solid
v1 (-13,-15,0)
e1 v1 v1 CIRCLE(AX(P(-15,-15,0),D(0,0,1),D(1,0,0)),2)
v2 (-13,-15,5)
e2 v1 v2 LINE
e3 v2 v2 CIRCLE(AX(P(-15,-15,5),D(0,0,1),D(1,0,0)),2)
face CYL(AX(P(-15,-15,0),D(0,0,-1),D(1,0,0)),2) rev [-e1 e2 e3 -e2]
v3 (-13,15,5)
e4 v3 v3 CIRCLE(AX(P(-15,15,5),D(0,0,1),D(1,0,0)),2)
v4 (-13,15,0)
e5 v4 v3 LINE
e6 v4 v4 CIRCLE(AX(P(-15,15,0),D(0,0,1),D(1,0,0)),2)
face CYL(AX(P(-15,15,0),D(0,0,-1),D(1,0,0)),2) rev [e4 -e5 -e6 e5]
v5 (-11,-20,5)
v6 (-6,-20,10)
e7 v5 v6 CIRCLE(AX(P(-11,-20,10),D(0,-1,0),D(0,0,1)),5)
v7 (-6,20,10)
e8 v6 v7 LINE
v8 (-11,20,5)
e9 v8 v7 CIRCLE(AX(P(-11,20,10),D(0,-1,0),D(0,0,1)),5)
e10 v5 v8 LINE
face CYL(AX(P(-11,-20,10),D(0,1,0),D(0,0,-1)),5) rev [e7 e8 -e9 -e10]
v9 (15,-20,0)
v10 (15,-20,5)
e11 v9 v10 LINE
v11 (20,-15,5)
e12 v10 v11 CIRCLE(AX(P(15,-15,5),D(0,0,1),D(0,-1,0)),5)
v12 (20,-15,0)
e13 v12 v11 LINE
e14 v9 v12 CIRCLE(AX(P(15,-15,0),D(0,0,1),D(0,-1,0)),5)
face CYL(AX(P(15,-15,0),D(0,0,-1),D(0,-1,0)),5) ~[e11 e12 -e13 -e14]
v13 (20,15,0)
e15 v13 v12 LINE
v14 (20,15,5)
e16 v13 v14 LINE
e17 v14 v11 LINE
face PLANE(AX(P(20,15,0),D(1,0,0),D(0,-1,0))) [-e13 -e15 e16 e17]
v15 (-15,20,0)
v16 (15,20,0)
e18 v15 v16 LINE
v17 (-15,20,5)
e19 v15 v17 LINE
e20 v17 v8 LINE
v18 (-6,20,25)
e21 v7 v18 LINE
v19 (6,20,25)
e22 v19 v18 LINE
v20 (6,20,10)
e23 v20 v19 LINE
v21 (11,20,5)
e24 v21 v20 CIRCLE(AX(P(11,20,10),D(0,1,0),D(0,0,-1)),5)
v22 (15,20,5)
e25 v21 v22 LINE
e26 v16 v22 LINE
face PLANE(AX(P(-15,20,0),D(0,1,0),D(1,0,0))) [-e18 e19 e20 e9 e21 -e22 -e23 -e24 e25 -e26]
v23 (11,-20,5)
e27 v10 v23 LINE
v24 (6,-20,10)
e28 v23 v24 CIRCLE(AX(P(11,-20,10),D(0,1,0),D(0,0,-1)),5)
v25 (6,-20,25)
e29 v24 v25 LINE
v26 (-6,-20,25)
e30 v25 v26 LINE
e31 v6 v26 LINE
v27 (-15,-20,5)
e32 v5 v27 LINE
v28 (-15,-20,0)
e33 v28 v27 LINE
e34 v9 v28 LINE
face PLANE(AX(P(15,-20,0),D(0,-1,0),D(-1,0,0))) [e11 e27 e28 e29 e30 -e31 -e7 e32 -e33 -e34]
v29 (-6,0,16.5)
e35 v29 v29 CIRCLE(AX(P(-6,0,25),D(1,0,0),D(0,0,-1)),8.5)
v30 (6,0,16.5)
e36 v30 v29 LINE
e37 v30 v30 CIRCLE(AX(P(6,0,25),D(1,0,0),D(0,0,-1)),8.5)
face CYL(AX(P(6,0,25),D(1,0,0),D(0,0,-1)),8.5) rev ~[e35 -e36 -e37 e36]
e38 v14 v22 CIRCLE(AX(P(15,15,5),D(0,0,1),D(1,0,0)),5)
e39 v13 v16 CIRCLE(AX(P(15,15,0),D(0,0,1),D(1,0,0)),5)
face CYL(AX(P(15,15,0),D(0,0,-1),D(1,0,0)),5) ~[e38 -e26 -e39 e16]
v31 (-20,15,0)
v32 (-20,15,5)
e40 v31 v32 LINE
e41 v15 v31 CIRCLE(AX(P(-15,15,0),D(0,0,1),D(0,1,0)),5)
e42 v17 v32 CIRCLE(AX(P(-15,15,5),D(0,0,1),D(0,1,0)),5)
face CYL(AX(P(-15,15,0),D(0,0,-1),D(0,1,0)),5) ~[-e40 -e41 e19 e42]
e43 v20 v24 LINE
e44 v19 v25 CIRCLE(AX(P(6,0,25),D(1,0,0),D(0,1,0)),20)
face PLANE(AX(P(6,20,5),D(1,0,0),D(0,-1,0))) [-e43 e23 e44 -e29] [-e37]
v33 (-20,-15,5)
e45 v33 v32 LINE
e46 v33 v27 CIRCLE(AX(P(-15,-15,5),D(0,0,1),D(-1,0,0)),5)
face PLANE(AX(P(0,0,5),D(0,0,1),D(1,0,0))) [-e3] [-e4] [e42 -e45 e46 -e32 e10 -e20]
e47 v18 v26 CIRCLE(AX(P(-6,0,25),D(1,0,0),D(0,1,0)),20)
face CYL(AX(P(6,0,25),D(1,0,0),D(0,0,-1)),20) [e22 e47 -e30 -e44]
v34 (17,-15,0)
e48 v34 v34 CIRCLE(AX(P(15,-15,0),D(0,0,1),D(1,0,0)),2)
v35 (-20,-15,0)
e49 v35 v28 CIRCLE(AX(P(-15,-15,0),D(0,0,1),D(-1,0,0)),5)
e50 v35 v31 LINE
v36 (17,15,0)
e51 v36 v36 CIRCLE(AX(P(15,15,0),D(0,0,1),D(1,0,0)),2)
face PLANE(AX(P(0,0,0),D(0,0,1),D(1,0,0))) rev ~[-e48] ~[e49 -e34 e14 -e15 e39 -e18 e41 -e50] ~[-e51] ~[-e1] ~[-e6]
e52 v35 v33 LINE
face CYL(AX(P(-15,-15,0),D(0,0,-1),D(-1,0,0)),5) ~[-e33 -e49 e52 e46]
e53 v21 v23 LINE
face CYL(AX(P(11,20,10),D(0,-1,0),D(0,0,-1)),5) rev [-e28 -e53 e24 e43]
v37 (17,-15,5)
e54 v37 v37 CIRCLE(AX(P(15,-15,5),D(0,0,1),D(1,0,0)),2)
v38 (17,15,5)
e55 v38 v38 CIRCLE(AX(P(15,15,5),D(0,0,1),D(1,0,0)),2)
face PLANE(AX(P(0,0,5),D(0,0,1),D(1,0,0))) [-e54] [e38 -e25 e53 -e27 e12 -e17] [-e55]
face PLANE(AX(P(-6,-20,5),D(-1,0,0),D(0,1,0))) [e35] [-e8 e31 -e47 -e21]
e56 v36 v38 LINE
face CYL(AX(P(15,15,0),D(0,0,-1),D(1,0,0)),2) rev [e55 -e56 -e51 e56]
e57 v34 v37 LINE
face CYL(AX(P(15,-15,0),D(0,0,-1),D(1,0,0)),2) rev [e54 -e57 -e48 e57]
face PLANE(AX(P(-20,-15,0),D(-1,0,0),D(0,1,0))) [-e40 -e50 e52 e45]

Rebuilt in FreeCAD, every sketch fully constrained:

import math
import FreeCAD as App
import Part
import Sketcher

V = App.Vector


def edges_at(feature, points):
    """Names of the edges that pass closest to the given points."""
    edges = feature.Shape.Edges
    near = lambda p: min(range(len(edges)), key=lambda i: edges[i].distToShape(Part.Vertex(*p))[0])
    return sorted({f"Edge{near(p) + 1}" for p in points})


def add_polygon(sketch, points):
    """Adds a closed chain of lines whose ends are joined by coincident constraints."""
    first, n = sketch.GeometryCount, len(points)
    for a, b in zip(points, points[1:] + points[:1]):
        sketch.addGeometry(Part.LineSegment(App.Vector(*a, 0), App.Vector(*b, 0)), False)
    for i in range(n):
        sketch.addConstraint(Sketcher.Constraint("Coincident", first + i, 2, first + (i + 1) % n, 1))

doc = App.newDocument("Part")
params = doc.addObject("Spreadsheet::Sheet", "Params")
for row, (alias, value) in enumerate([
    ("sketch1_diameter", "4 mm"),
    ("sketch1_radius", "5 mm"),
    ("sketch1_width", "30 mm"),
    ("pad1_length", "5 mm"),
    ("sketch2_width", "12 mm"),
    ("sketch2_height", "40 mm"),
    ("pad2_length", "40 mm"),
    ("fillet_radius", "5 mm"),
    ("sketch3_diameter", "17 mm"),
    ("sketch3_radius", "20 mm"),
    ("pocket1_length", "50 mm"),
], start=1):
    params.set(f"A{row}", alias)
    params.set(f"B{row}", "=" + value)
    params.setAlias(f"B{row}", alias)

body = doc.addObject("PartDesign::Body", "Body")

# Sketch on XY plane
sketch1 = body.newObject("Sketcher::SketchObject", "Sketch")
sketch1.AttachmentSupport = (doc.getObject("XY_Plane"), [""])
sketch1.MapMode = "FlatFace"
sketch1.addGeometry(Part.LineSegment(V(15, 20, 0), V(-15, 20, 0)), False)
sketch1.addGeometry(Part.ArcOfCircle(Part.Circle(V(-15, 15, 0), V(0, 0, 1), 5), math.radians(90), math.radians(180)), False)
sketch1.addGeometry(Part.LineSegment(V(-20, 15, 0), V(-20, -15, 0)), False)
sketch1.addGeometry(Part.ArcOfCircle(Part.Circle(V(-15, -15, 0), V(0, 0, 1), 5), math.radians(180), math.radians(270)), False)
sketch1.addGeometry(Part.LineSegment(V(-15, -20, 0), V(15, -20, 0)), False)
sketch1.addGeometry(Part.ArcOfCircle(Part.Circle(V(15, -15, 0), V(0, 0, 1), 5), math.radians(-90), math.radians(0)), False)
sketch1.addGeometry(Part.LineSegment(V(20, -15, 0), V(20, 15, 0)), False)
sketch1.addGeometry(Part.ArcOfCircle(Part.Circle(V(15, 15, 0), V(0, 0, 1), 5), math.radians(0), math.radians(90)), False)
sketch1.addGeometry(Part.Circle(V(-15, -15, 0), V(0, 0, 1), 2), False)
sketch1.addGeometry(Part.Circle(V(15, -15, 0), V(0, 0, 1), 2), False)
sketch1.addGeometry(Part.Circle(V(-15, 15, 0), V(0, 0, 1), 2), False)
sketch1.addGeometry(Part.Circle(V(15, 15, 0), V(0, 0, 1), 2), False)
sketch1.addConstraint(Sketcher.Constraint("Tangent", 0, 2, 1, 1))
sketch1.addConstraint(Sketcher.Constraint("Tangent", 1, 2, 2, 1))
sketch1.addConstraint(Sketcher.Constraint("Tangent", 2, 2, 3, 1))
sketch1.addConstraint(Sketcher.Constraint("Tangent", 3, 2, 4, 1))
sketch1.addConstraint(Sketcher.Constraint("Tangent", 4, 2, 5, 1))
sketch1.addConstraint(Sketcher.Constraint("Tangent", 5, 2, 6, 1))
sketch1.addConstraint(Sketcher.Constraint("Tangent", 6, 2, 7, 1))
sketch1.addConstraint(Sketcher.Constraint("Tangent", 7, 2, 0, 1))
sketch1.addConstraint(Sketcher.Constraint("Horizontal", 0))
sketch1.addConstraint(Sketcher.Constraint("Vertical", 2))
sketch1.addConstraint(Sketcher.Constraint("Horizontal", 4))
sketch1.addConstraint(Sketcher.Constraint("Vertical", 6))
sketch1.addConstraint(Sketcher.Constraint("Coincident", 8, 3, 3, 3))
sketch1.addConstraint(Sketcher.Constraint("Coincident", 9, 3, 5, 3))
sketch1.addConstraint(Sketcher.Constraint("Coincident", 10, 3, 1, 3))
sketch1.addConstraint(Sketcher.Constraint("Coincident", 11, 3, 7, 3))
sketch1.addConstraint(Sketcher.Constraint("Equal", 1, 3))
sketch1.addConstraint(Sketcher.Constraint("Equal", 3, 5))
sketch1.addConstraint(Sketcher.Constraint("Equal", 5, 7))
sketch1.addConstraint(Sketcher.Constraint("Equal", 8, 9))
sketch1.addConstraint(Sketcher.Constraint("Equal", 9, 10))
sketch1.addConstraint(Sketcher.Constraint("Equal", 10, 11))
sketch1.addConstraint(Sketcher.Constraint("Symmetric", 1, 3, 5, 3, -1, 1))
sketch1.addConstraint(Sketcher.Constraint("Equal", 4, 2))
sketch1.addConstraint(Sketcher.Constraint("Diameter", 8, 4.0))
sketch1.addConstraint(Sketcher.Constraint("Radius", 1, 5.0))
sketch1.addConstraint(Sketcher.Constraint("DistanceX", 0, 2, 0, 1, 30.0))
sketch1.setExpression("Constraints[24]", "Params.sketch1_diameter")
sketch1.setExpression("Constraints[25]", "Params.sketch1_radius")
sketch1.setExpression("Constraints[26]", "Params.sketch1_width")
pad1 = body.newObject("PartDesign::Pad", "Pad")
pad1.Profile = sketch1
pad1.setExpression("Length", "Params.pad1_length")

# Sketch on XY plane
sketch2 = body.newObject("Sketcher::SketchObject", "Sketch001")
sketch2.AttachmentSupport = (doc.getObject("XY_Plane"), [""])
sketch2.MapMode = "FlatFace"
sketch2.AttachmentOffset = App.Placement(V(0, 0, 5), App.Rotation())
add_polygon(sketch2, [(-6, 20), (-6, -20), (6, -20), (6, 20)])  # lines 0-3
sketch2.addConstraint(Sketcher.Constraint("Vertical", 0))
sketch2.addConstraint(Sketcher.Constraint("Horizontal", 1))
sketch2.addConstraint(Sketcher.Constraint("Vertical", 2))
sketch2.addConstraint(Sketcher.Constraint("Horizontal", 3))
sketch2.addConstraint(Sketcher.Constraint("Symmetric", 0, 2, 2, 2, -1, 1))
sketch2.addConstraint(Sketcher.Constraint("DistanceX", 1, 1, 1, 2, 12.0))
sketch2.addConstraint(Sketcher.Constraint("DistanceY", 0, 2, 0, 1, 40.0))
sketch2.setExpression("Constraints[9]", "Params.sketch2_width")
sketch2.setExpression("Constraints[10]", "Params.sketch2_height")
pad2 = body.newObject("PartDesign::Pad", "Pad001")
pad2.Profile = sketch2
pad2.setExpression("Length", "Params.pad2_length")
doc.recompute()

fillet = body.newObject("PartDesign::Fillet", "Fillet")
fillet.Base = (pad2, edges_at(pad2, [(6, 0, 5), (-6, 0, 5)]))
fillet.setExpression("Radius", "Params.fillet_radius")

# Sketch on YZ plane
sketch3 = body.newObject("Sketcher::SketchObject", "Sketch002")
sketch3.AttachmentSupport = (doc.getObject("YZ_Plane"), [""])
sketch3.MapMode = "FlatFace"
sketch3.AttachmentOffset = App.Placement(V(0, 0, 6), App.Rotation())
sketch3.addGeometry(Part.Circle(V(0, 25, 0), V(0, 0, 1), 8.5), False)
sketch3.addGeometry(Part.ArcOfCircle(Part.Circle(V(0, 25, 0), V(0, 0, 1), 20), math.radians(0), math.radians(90)), False)
sketch3.addGeometry(Part.LineSegment(V(20, 25, 0), V(20, 45, 0)), False)
sketch3.addGeometry(Part.LineSegment(V(20, 45, 0), V(0, 45, 0)), False)
sketch3.addGeometry(Part.LineSegment(V(-20, 45, 0), V(-20, 25, 0)), False)
sketch3.addGeometry(Part.ArcOfCircle(Part.Circle(V(0, 25, 0), V(0, 0, 1), 20), math.radians(90), math.radians(180)), False)
sketch3.addGeometry(Part.LineSegment(V(0, 45, 0), V(-20, 45, 0)), False)
sketch3.addConstraint(Sketcher.Constraint("Tangent", 1, 1, 2, 1))
sketch3.addConstraint(Sketcher.Constraint("Coincident", 2, 2, 3, 1))
sketch3.addConstraint(Sketcher.Constraint("Tangent", 3, 2, 1, 2))
sketch3.addConstraint(Sketcher.Constraint("Tangent", 4, 2, 5, 2))
sketch3.addConstraint(Sketcher.Constraint("Tangent", 5, 1, 6, 1))
sketch3.addConstraint(Sketcher.Constraint("Coincident", 6, 2, 4, 1))
sketch3.addConstraint(Sketcher.Constraint("Vertical", 2))
sketch3.addConstraint(Sketcher.Constraint("Horizontal", 3))
sketch3.addConstraint(Sketcher.Constraint("Vertical", 4))
sketch3.addConstraint(Sketcher.Constraint("Horizontal", 6))
sketch3.addConstraint(Sketcher.Constraint("Coincident", 1, 3, 0, 3))
sketch3.addConstraint(Sketcher.Constraint("Coincident", 5, 3, 0, 3))
sketch3.addConstraint(Sketcher.Constraint("Equal", 1, 5))
sketch3.addConstraint(Sketcher.Constraint("PointOnObject", 0, 3, -2))
sketch3.addConstraint(Sketcher.Constraint("Diameter", 0, 17.0))
sketch3.addConstraint(Sketcher.Constraint("Radius", 1, 20.0))
sketch3.addConstraint(Sketcher.Constraint("DistanceY", -1, 1, 0, 3, 25.0))
sketch3.setExpression("Constraints[14]", "Params.sketch3_diameter")
sketch3.setExpression("Constraints[15]", "Params.sketch3_radius")
pocket1 = body.newObject("PartDesign::Pocket", "Pocket")
pocket1.Profile = sketch3
pocket1.setExpression("Length", "Params.pocket1_length")

doc.recompute()
